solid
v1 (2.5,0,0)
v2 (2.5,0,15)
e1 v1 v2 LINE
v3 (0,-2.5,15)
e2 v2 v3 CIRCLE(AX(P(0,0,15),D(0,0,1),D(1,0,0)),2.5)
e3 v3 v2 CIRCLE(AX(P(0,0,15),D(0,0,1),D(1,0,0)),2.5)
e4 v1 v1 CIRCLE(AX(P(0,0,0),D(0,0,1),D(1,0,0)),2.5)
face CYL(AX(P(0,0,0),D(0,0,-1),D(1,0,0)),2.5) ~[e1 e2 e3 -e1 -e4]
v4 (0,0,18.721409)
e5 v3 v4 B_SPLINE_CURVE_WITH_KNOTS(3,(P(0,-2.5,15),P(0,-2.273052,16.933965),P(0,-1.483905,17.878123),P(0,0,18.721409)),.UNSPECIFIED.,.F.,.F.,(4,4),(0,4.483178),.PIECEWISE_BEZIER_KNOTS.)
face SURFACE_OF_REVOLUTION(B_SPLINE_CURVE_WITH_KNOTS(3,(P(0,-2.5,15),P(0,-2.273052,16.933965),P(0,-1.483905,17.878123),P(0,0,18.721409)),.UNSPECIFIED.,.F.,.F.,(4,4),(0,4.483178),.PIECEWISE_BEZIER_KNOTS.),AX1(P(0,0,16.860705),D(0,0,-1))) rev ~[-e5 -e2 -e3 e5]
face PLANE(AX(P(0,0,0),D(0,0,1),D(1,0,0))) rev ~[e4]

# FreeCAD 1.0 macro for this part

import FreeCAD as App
import Part
import Sketcher

doc = App.newDocument("Part")
body = doc.addObject("PartDesign::Body", "Body")

sketch1 = body.newObject("Sketcher::SketchObject", "Sketch")
sketch1.AttachmentSupport = (doc.getObject("XY_Plane"), [""])
sketch1.MapMode = "FlatFace"
sketch1.addGeometry(Part.Circle(App.Vector(0, 0, 0), App.Vector(0, 0, 1), 2.5), False)
sketch1.addConstraint([
    Sketcher.Constraint("Coincident", 0, 3, -1, 1),
    Sketcher.Constraint("Diameter", 0, 5.0),
])
pad1 = body.newObject("PartDesign::Pad", "Pad")
pad1.Profile = sketch1
pad1.Length = 15

sketch2 = body.newObject("Sketcher::SketchObject", "Sketch001")
sketch2.AttachmentSupport = (doc.getObject("YZ_Plane"), [""])
sketch2.MapMode = "FlatFace"
sketch2.addGeometry([
    Part.BSplineCurve([App.Vector(-2.5, 15, 0), App.Vector(-2.273052, 16.933965, 0), App.Vector(-1.483905, 17.878123, 0), App.Vector(0, 18.721409, 0)], [4, 4], [0, 4.483178], False, 3, [1, 1, 1, 1], False),
    Part.LineSegment(App.Vector(-2.5, 15, 0), App.Vector(0, 15, 0)),
    Part.LineSegment(App.Vector(0, 15, 0), App.Vector(0, 18.721409, 0)),
], False)
sketch2.addConstraint([
    Sketcher.Constraint("Block", 0),
    Sketcher.Constraint("Coincident", 0, 1, 1, 1),
    Sketcher.Constraint("Coincident", 1, 2, 2, 1),
    Sketcher.Constraint("Coincident", 2, 2, 0, 2),
    Sketcher.Constraint("Horizontal", 1),
    Sketcher.Constraint("Vertical", 2),
])
revolution = body.newObject("PartDesign::Revolution", "Revolution")
revolution.Profile = sketch2
revolution.ReferenceAxis = (sketch2, ["V_Axis"])
revolution.Angle = 360

doc.recompute()
